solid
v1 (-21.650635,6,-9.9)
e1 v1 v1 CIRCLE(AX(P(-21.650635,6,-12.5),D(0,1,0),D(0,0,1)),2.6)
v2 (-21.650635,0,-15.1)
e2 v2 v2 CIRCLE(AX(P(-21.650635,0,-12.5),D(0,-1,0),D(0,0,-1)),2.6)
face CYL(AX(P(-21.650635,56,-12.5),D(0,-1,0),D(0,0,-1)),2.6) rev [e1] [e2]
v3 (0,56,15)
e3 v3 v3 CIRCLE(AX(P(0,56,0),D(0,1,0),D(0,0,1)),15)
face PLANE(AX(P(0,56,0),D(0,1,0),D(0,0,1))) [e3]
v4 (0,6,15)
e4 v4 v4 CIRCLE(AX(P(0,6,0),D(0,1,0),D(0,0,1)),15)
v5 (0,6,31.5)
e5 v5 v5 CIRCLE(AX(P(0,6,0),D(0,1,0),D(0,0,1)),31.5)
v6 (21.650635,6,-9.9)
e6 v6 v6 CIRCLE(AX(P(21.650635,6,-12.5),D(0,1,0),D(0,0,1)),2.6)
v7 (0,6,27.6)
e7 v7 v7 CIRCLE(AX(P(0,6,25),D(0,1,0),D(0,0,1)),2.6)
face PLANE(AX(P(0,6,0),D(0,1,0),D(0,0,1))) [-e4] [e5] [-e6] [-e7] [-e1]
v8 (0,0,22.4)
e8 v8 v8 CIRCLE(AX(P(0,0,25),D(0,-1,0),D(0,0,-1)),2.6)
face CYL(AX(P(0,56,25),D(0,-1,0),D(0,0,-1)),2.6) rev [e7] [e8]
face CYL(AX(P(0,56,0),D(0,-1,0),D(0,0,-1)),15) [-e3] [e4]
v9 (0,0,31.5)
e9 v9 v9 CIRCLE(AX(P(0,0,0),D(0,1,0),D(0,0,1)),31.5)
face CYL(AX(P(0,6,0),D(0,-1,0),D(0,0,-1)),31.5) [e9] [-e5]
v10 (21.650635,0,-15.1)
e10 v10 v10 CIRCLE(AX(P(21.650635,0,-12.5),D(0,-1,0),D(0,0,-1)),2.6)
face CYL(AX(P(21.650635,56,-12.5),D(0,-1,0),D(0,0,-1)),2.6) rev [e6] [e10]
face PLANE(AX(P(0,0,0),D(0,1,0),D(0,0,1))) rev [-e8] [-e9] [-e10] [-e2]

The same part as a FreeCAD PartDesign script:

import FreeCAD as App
import Part
import Sketcher

V = App.Vector
Q = App.Units.Quantity

doc = App.newDocument("Part")
body = doc.addObject("PartDesign::Body", "Body")

# Sketch on XZ plane
sketch1 = body.newObject("Sketcher::SketchObject", "Sketch")
sketch1.AttachmentSupport = (doc.getObject("XZ_Plane"), [""])
sketch1.MapMode = "FlatFace"
sketch1.addGeometry(Part.Circle(V(0, 0, 0), V(0, 0, 1), 31.5), False)
sketch1.addConstraint([
    Sketcher.Constraint("Coincident", 0, 3, -1, 1),
    Sketcher.Constraint("Diameter", 0, Q("63 mm")),
])
pad1 = body.newObject("PartDesign::Pad", "Pad")
pad1.Profile = sketch1
pad1.Length = 6
pad1.Reversed = True

# Sketch on XZ plane
sketch2 = body.newObject("Sketcher::SketchObject", "Sketch001")
sketch2.AttachmentSupport = (doc.getObject("XZ_Plane"), [""])
sketch2.MapMode = "FlatFace"
sketch2.AttachmentOffset = App.Placement(V(0, 0, -6), App.Rotation())
sketch2.addGeometry(Part.Circle(V(0, 0, 0), V(0, 0, 1), 15), False)
sketch2.addConstraint([
    Sketcher.Constraint("Coincident", 0, 3, -1, 1),
    Sketcher.Constraint("Diameter", 0, Q("30 mm")),
])
pad2 = body.newObject("PartDesign::Pad", "Pad001")
pad2.Profile = sketch2
pad2.Length = 50
pad2.Reversed = True

# Sketch on XZ plane
sketch3 = body.newObject("Sketcher::SketchObject", "Sketch002")
sketch3.AttachmentSupport = (doc.getObject("XZ_Plane"), [""])
sketch3.MapMode = "FlatFace"
sketch3.addGeometry([
    Part.Circle(V(-21.650635, -12.5, 0), V(0, 0, 1), 2.6),
    Part.Circle(V(0, 25, 0), V(0, 0, 1), 2.6),
    Part.Circle(V(21.650635, -12.5, 0), V(0, 0, 1), 2.6),
], False)
sketch3.addConstraint([
    Sketcher.Constraint("Equal", 0, 1),
    Sketcher.Constraint("Equal", 1, 2),
    Sketcher.Constraint("Symmetric", 0, 3, 2, 3, -2),
    Sketcher.Constraint("PointOnObject", 1, 3, -2),
    Sketcher.Constraint("Diameter", 0, Q("5.2 mm")),
    Sketcher.Constraint("DistanceY", -1, 1, 1, 3, Q("25 mm")),
    Sketcher.Constraint("DistanceY", 0, 3, -1, 1, Q("12.5 mm")),
    Sketcher.Constraint("DistanceX", 0, 3, 2, 3, Q("43.30127 mm")),
])
pocket1 = body.newObject("PartDesign::Pocket", "Pocket")
pocket1.Profile = sketch3
pocket1.Type = "ThroughAll"

doc.recompute()
